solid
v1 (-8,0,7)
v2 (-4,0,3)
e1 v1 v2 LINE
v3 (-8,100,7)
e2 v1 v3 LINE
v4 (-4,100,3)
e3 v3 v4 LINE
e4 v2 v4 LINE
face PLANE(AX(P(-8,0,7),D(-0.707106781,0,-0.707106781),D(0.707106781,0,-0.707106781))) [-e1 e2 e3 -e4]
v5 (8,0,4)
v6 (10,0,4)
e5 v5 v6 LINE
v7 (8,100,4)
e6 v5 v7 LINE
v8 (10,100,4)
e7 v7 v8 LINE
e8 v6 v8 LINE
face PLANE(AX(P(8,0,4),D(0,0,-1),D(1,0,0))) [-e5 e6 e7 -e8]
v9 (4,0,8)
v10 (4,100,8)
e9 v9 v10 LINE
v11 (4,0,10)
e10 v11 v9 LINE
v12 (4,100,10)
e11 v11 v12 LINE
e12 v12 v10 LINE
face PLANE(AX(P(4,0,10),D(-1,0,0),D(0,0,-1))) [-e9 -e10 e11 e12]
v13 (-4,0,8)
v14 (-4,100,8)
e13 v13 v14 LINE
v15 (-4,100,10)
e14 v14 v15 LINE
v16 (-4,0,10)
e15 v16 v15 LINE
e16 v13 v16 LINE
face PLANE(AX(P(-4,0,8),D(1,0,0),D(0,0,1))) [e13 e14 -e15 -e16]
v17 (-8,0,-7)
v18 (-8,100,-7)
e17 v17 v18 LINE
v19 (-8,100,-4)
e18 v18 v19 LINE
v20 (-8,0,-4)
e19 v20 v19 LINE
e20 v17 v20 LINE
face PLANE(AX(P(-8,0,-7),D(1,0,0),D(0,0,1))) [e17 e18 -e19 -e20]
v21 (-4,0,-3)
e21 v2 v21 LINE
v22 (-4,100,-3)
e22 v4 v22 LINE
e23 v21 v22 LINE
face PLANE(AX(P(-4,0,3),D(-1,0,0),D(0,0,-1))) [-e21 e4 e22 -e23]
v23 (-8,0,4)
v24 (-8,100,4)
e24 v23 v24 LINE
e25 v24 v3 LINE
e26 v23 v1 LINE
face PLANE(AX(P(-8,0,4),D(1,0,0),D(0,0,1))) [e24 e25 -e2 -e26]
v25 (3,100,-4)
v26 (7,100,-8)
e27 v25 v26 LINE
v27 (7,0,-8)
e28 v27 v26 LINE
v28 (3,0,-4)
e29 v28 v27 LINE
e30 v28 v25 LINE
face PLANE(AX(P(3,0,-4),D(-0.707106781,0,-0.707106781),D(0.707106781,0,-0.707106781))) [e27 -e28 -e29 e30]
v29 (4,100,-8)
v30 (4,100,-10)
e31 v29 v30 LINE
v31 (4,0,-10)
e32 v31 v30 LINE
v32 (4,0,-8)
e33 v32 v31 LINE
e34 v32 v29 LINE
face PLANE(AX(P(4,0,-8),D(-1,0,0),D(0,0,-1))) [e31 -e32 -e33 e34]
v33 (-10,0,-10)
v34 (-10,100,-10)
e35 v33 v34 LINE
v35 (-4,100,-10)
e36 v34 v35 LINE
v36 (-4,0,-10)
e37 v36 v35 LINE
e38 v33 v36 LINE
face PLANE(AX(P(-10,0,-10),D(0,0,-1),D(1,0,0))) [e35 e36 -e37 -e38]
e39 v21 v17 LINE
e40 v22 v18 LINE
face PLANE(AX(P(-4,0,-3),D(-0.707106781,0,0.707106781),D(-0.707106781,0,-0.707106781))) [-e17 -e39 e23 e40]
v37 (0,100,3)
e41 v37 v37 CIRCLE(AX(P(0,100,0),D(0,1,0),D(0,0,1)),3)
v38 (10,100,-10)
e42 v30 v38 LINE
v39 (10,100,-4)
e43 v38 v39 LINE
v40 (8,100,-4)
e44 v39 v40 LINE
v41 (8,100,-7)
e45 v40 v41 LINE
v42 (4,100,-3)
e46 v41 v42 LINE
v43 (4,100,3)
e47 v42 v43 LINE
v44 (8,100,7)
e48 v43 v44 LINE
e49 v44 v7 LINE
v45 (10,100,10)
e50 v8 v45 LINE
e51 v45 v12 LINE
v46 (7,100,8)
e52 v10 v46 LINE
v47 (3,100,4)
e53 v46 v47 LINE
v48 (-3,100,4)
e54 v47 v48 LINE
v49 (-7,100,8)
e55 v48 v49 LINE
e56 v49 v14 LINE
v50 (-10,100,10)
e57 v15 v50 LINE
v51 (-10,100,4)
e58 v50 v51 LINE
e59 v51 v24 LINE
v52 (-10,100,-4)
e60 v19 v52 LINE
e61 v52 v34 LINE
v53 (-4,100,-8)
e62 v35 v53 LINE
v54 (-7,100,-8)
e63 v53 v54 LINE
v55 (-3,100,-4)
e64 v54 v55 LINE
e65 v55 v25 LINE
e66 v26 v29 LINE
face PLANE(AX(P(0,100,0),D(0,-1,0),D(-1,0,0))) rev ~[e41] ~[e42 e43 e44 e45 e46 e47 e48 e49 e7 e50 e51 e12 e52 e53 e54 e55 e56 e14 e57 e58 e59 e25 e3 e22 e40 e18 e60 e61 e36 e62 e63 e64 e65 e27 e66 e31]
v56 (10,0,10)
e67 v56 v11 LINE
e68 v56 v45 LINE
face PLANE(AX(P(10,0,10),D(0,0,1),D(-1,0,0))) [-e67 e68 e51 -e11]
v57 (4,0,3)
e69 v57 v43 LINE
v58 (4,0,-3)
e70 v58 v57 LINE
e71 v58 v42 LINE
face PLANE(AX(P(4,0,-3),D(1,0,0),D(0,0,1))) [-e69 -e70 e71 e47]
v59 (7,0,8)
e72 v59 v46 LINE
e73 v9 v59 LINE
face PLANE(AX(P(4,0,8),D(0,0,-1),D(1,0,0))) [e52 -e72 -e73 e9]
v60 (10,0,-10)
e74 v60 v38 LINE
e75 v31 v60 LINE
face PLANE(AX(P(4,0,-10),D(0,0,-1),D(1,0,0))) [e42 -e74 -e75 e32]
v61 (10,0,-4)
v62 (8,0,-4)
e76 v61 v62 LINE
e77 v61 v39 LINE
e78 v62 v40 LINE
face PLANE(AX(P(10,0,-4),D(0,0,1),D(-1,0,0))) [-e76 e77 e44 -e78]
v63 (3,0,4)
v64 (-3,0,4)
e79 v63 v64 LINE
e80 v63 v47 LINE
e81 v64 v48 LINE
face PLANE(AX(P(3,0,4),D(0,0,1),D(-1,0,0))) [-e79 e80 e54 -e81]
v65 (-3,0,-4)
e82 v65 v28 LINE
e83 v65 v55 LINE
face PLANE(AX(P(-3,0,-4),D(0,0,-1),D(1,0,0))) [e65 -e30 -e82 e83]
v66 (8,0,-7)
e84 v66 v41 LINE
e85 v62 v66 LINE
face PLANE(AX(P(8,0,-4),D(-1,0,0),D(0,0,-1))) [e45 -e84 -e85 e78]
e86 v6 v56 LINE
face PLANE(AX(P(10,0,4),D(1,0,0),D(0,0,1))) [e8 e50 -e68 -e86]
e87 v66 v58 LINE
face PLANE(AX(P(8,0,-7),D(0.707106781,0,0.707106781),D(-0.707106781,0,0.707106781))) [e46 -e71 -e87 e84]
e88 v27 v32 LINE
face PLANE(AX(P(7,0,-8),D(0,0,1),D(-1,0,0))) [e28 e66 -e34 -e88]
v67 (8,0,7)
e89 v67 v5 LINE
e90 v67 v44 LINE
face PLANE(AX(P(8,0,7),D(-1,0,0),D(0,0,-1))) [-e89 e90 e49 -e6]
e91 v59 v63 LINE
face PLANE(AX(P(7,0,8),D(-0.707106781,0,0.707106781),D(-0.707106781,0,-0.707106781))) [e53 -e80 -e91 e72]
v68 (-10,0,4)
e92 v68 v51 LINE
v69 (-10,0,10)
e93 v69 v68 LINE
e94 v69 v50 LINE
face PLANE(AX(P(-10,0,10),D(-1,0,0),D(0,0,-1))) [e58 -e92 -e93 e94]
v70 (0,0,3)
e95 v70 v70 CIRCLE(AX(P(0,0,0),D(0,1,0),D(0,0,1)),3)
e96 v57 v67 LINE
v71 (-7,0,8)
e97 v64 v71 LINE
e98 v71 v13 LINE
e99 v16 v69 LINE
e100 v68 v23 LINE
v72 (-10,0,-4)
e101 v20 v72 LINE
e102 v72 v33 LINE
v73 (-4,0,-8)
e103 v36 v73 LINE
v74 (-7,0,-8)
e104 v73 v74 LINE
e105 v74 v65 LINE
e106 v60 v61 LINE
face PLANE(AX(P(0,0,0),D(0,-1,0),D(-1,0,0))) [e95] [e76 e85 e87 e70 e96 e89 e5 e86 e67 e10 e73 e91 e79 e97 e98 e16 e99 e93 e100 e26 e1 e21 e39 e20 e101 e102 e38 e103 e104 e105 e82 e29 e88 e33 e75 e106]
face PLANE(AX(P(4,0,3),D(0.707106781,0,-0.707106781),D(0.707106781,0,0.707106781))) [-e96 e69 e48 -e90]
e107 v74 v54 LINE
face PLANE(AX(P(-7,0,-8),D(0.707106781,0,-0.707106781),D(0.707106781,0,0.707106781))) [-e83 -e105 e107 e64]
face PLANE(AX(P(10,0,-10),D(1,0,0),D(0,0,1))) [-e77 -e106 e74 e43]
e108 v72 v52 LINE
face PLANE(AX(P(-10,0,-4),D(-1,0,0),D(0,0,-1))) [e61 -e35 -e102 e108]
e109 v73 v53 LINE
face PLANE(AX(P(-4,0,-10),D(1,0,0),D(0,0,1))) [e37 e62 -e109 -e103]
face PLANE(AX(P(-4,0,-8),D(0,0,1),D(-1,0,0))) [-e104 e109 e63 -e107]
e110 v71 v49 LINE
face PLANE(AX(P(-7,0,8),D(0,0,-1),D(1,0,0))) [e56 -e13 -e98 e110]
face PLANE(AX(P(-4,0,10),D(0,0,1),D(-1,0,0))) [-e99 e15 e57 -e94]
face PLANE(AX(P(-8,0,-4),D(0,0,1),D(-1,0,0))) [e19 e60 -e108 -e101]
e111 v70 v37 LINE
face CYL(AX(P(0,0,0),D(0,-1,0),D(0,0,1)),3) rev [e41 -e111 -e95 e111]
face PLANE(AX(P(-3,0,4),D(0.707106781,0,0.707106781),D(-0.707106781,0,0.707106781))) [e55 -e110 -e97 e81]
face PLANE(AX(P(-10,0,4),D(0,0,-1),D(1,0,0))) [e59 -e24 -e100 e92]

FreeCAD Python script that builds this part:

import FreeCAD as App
import Part
import Sketcher
Q = App.Units.Quantity


def add_polygon(sketch, points):
    """Adds a closed chain of lines whose ends are joined by coincident constraints."""
    first, n = sketch.GeometryCount, len(points)
    for a, b in zip(points, points[1:] + points[:1]):
        sketch.addGeometry(Part.LineSegment(App.Vector(*a, 0), App.Vector(*b, 0)), False)
    for i in range(n):
        sketch.addConstraint(Sketcher.Constraint("Coincident", first + i, 2, first + (i + 1) % n, 1))

doc = App.newDocument("Part")
params = doc.addObject("Spreadsheet::Sheet", "Params")
for row, (alias, value) in enumerate([
    ("sketch1_diameter", "6 mm"),
    ("sketch1_width", "6 mm"),
    ("sketch1_width2", "2 mm"),
    ("sketch1_width3", "3 mm"),
    ("pad1_length", "100 mm"),
], start=1):
    params.set(f"A{row}", alias)
    params.set(f"B{row}", "=" + value)
    params.setAlias(f"B{row}", alias)

body = doc.addObject("PartDesign::Body", "Body")

sketch1 = doc.addObject("Sketcher::SketchObject", "Sketch")
body.addObject(sketch1)
sketch1.AttachmentSupport = (doc.XZ_Plane, [""])
sketch1.MapMode = "FlatFace"
add_polygon(sketch1, [(-4, -8), (-4, -10), (-10, -10), (-10, -4), (-8, -4), (-8, -7), (-4, -3), (-4, 3), (-8, 7), (-8, 4), (-10, 4), (-10, 10), (-4, 10), (-4, 8), (-7, 8), (-3, 4), (3, 4), (7, 8), (4, 8), (4, 10), (10, 10), (10, 4), (8, 4), (8, 7), (4, 3), (4, -3), (8, -7), (8, -4), (10, -4), (10, -10), (4, -10), (4, -8), (7, -8), (3, -4), (-3, -4), (-7, -8)])
sketch1.addGeometry(Part.Circle(App.Vector(0, 0, 0), App.Vector(0, 0, 1), 3), False)
sketch1.addConstraint([
    Sketcher.Constraint("Vertical", 0),
    Sketcher.Constraint("Horizontal", 1),
    Sketcher.Constraint("Vertical", 2),
    Sketcher.Constraint("Horizontal", 3),
    Sketcher.Constraint("Vertical", 4),
    Sketcher.Constraint("Vertical", 6),
    Sketcher.Constraint("Vertical", 8),
    Sketcher.Constraint("Horizontal", 9),
    Sketcher.Constraint("Vertical", 10),
    Sketcher.Constraint("Horizontal", 11),
    Sketcher.Constraint("Vertical", 12),
    Sketcher.Constraint("Horizontal", 13),
    Sketcher.Constraint("Horizontal", 15),
    Sketcher.Constraint("Horizontal", 17),
    Sketcher.Constraint("Vertical", 18),
    Sketcher.Constraint("Horizontal", 19),
    Sketcher.Constraint("Vertical", 20),
    Sketcher.Constraint("Horizontal", 21),
    Sketcher.Constraint("Vertical", 22),
    Sketcher.Constraint("Vertical", 24),
    Sketcher.Constraint("Vertical", 26),
    Sketcher.Constraint("Horizontal", 27),
    Sketcher.Constraint("Vertical", 28),
    Sketcher.Constraint("Horizontal", 29),
    Sketcher.Constraint("Vertical", 30),
    Sketcher.Constraint("Horizontal", 31),
    Sketcher.Constraint("Horizontal", 33),
    Sketcher.Constraint("Horizontal", 35),
    Sketcher.Constraint("Coincident", 36, 3, -1, 1),
    Sketcher.Constraint("Symmetric", 0, 2, 18, 2, -1, 1),
    Sketcher.Constraint("Symmetric", 2, 2, 20, 2, -1, 1),
    Sketcher.Constraint("Symmetric", 4, 2, 22, 2, -1, 1),
    Sketcher.Constraint("Symmetric", 5, 2, 23, 2, -1, 1),
    Sketcher.Constraint("Symmetric", 7, 2, 25, 2, -1, 1),
    Sketcher.Constraint("Symmetric", 9, 2, 27, 2, -1, 1),
    Sketcher.Constraint("Symmetric", 11, 2, 29, 2, -1, 1),
    Sketcher.Constraint("Symmetric", 13, 2, 31, 2, -1, 1),
    Sketcher.Constraint("Symmetric", 14, 2, 32, 2, -1, 1),
    Sketcher.Constraint("Symmetric", 16, 2, 34, 2, -1, 1),
    Sketcher.Constraint("Symmetric", 13, 2, 16, 2, -2),
    Sketcher.Constraint("Symmetric", 11, 2, 18, 2, -2),
    Sketcher.Constraint("Symmetric", 9, 2, 20, 2, -2),
    Sketcher.Constraint("Symmetric", 7, 2, 22, 2, -2),
    Sketcher.Constraint("Perpendicular", 5, 7),
    Sketcher.Constraint("Parallel", 7, 14),
    Sketcher.Constraint("Perpendicular", 14, 16),
    Sketcher.Constraint("Perpendicular", 23, 25),
    Sketcher.Constraint("Perpendicular", 32, 34),
    Sketcher.Constraint("Horizontal", 9, 2, 14, 2),
    Sketcher.Constraint("Horizontal", 6, 2, 23, 2),
    Sketcher.Constraint("Vertical", 0, 2, 5, 2),
    Sketcher.Constraint("Equal", 11, 15),
    Sketcher.Constraint("Equal", 27, 0),
    Sketcher.Constraint("Equal", 33, 2),
    Sketcher.Constraint("Equal", 35, 4),
    Sketcher.Constraint("Equal", 2, 6),
    Sketcher.Constraint("Diameter", 36, Q("6 mm")),
    Sketcher.Constraint("DistanceX", 1, 2, 1, 1, Q("6 mm")),
    Sketcher.Constraint("DistanceX", 3, 1, 3, 2, Q("2 mm")),
    Sketcher.Constraint("DistanceX", 13, 2, 13, 1, Q("3 mm")),
])
sketch1.setExpression("Constraints[92]", "Params.sketch1_diameter")
sketch1.setExpression("Constraints[93]", "Params.sketch1_width")
sketch1.setExpression("Constraints[94]", "Params.sketch1_width2")
sketch1.setExpression("Constraints[95]", "Params.sketch1_width3")
pad1 = doc.addObject("PartDesign::Pad", "Pad")
body.addObject(pad1)
pad1.Profile = sketch1
pad1.setExpression("Length", "Params.pad1_length")
pad1.Reversed = True

doc.recompute()
